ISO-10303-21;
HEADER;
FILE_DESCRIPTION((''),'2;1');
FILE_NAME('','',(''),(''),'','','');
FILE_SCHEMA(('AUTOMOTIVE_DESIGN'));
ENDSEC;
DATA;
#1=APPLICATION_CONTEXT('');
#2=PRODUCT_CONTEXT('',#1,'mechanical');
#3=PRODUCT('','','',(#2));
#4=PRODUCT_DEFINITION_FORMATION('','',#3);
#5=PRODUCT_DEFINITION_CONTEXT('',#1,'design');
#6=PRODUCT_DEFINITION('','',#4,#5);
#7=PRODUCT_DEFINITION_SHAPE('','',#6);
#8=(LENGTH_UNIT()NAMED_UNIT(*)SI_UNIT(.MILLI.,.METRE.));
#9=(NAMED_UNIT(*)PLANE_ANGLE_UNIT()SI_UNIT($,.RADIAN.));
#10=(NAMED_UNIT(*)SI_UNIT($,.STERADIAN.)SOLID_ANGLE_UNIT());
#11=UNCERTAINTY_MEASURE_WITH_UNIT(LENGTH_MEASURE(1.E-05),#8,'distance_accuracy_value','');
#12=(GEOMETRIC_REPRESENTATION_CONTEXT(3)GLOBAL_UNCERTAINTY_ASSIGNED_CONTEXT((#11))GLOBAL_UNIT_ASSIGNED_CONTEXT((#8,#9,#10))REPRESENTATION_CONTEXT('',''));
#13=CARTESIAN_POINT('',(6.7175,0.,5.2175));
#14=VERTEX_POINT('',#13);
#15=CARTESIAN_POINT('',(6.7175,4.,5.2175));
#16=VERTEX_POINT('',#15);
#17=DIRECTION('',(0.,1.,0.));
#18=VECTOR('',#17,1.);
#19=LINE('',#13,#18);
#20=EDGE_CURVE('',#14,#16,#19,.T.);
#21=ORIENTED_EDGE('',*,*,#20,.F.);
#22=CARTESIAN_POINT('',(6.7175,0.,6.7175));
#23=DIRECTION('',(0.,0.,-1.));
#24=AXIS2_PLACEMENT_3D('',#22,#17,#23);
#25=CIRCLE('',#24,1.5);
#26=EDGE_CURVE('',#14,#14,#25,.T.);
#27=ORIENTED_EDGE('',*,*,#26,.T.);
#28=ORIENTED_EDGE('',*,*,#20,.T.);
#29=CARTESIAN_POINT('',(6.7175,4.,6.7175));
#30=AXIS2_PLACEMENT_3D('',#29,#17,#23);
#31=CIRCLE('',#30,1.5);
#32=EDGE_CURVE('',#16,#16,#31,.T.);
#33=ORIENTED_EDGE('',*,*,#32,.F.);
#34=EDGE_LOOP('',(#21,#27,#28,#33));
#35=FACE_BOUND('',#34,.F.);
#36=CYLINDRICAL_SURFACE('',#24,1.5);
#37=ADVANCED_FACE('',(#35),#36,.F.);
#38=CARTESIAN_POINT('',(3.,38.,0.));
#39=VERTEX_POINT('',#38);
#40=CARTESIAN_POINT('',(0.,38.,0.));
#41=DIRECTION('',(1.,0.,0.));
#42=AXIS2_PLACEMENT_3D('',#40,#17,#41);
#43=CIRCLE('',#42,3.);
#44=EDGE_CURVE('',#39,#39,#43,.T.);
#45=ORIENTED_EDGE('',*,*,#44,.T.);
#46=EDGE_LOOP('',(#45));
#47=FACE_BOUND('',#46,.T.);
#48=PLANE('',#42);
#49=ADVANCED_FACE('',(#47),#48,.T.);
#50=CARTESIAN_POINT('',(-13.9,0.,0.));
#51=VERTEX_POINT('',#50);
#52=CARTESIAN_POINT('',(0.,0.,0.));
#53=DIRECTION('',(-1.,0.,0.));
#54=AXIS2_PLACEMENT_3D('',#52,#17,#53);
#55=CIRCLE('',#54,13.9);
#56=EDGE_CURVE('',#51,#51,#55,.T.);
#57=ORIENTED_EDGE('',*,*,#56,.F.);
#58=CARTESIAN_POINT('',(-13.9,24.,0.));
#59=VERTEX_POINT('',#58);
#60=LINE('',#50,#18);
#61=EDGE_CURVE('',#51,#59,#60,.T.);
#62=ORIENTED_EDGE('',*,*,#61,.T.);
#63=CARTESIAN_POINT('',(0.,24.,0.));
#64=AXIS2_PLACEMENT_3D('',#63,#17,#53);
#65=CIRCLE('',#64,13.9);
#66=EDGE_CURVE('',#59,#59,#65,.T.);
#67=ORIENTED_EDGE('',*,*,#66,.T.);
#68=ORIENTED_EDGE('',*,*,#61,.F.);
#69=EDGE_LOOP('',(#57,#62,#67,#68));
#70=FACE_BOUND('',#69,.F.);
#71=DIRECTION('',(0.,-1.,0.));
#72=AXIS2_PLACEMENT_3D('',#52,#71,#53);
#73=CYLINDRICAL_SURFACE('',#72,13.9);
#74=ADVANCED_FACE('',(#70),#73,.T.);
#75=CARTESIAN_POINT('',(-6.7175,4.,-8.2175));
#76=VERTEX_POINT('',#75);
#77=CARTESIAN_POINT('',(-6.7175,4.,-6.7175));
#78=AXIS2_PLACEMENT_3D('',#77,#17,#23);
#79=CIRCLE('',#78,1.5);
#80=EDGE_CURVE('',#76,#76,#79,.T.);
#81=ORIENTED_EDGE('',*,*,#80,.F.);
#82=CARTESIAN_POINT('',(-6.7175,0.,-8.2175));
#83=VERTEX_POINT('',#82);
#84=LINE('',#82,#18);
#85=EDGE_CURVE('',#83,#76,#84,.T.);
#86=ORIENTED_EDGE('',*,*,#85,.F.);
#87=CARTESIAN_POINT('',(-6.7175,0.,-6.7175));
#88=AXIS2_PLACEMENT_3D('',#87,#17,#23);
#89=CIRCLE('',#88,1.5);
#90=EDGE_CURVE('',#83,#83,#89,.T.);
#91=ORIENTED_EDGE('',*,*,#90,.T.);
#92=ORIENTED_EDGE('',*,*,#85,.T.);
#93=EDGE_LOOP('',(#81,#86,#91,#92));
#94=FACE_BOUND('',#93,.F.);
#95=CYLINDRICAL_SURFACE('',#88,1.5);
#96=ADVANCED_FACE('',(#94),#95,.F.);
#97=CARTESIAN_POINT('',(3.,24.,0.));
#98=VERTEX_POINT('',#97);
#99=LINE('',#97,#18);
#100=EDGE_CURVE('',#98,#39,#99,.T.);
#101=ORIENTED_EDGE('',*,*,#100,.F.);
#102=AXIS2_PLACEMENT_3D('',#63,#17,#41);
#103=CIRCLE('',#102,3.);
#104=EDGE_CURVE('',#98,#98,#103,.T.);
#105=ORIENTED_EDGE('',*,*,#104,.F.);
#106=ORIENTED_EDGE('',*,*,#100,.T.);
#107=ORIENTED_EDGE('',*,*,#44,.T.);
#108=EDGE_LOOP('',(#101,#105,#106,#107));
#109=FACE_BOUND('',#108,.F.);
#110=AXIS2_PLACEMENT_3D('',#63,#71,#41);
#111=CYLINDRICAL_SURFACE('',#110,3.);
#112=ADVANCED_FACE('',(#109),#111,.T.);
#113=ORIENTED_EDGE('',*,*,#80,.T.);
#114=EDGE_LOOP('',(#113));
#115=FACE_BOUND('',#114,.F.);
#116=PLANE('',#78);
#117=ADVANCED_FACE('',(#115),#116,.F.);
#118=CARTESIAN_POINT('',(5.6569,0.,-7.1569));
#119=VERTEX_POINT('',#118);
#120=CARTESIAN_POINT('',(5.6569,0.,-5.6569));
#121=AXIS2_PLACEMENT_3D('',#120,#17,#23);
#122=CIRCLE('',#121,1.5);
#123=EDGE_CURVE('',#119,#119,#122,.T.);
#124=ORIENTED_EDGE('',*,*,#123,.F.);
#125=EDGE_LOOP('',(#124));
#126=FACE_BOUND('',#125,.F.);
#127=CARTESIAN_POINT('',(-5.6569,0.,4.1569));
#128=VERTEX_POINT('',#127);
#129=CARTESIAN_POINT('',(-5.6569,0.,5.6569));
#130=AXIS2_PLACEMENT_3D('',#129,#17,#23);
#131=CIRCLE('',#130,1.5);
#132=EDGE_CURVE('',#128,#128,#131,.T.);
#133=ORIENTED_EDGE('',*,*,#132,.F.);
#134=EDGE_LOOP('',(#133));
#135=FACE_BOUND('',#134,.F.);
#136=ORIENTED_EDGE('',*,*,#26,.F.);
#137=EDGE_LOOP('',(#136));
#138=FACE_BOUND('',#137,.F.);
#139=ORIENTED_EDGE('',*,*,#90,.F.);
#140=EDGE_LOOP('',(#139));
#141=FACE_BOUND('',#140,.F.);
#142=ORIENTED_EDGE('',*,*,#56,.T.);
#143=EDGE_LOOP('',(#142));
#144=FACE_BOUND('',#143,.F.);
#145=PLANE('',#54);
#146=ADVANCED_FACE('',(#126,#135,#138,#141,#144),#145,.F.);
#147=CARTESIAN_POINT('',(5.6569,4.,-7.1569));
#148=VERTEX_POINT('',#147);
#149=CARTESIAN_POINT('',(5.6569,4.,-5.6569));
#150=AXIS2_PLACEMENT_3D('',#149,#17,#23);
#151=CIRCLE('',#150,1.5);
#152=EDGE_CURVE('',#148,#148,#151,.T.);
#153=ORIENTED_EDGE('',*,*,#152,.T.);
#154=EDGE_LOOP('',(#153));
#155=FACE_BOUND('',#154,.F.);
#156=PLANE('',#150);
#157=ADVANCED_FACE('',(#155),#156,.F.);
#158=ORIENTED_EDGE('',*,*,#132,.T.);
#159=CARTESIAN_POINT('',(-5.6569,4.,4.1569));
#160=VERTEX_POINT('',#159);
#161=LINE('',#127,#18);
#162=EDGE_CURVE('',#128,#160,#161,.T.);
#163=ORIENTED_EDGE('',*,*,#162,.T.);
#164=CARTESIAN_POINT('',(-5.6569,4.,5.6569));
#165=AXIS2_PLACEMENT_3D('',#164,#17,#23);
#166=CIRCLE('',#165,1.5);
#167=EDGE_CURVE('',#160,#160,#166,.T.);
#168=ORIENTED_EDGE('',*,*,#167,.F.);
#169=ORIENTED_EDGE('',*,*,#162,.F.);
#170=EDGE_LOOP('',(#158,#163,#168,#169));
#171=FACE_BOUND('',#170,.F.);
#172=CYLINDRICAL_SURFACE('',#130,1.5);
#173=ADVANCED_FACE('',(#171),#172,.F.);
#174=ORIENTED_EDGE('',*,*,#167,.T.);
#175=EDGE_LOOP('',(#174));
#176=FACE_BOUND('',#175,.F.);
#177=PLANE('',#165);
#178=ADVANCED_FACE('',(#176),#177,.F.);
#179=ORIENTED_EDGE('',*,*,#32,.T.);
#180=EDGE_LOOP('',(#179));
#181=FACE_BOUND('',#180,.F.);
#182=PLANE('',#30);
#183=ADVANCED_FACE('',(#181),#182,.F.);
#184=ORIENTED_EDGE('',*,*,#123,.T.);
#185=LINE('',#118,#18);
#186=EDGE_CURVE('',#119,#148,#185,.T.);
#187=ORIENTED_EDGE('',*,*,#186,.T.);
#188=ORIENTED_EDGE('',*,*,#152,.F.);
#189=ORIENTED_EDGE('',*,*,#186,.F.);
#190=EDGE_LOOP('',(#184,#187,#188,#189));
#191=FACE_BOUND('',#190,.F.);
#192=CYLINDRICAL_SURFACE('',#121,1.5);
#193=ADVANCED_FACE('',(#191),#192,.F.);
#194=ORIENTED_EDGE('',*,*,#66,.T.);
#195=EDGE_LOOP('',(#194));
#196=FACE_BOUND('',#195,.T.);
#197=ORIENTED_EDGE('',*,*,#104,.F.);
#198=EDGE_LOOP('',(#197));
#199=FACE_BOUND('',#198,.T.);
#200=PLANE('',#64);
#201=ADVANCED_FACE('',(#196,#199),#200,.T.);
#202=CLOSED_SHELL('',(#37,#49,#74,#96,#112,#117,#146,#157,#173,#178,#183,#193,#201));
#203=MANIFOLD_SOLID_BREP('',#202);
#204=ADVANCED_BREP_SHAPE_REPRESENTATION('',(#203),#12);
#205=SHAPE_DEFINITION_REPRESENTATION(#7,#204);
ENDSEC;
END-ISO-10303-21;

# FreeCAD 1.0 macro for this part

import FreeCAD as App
import Part
import Sketcher
Q = App.Units.Quantity

doc = App.newDocument("Part")
params = doc.addObject("Spreadsheet::Sheet", "Params")
for row, (alias, value) in enumerate([
    ("sketch1_diameter", "27.8 mm"),
    ("pad1_length", "24 mm"),
    ("sketch2_diameter", "3 mm"),
    ("hole_diameter", "3 mm"),
    ("hole_depth", "4 mm"),
    ("sketch3_diameter", "6 mm"),
    ("pad2_length", "14 mm"),
], start=1):
    params.set(f"A{row}", alias)
    params.set(f"B{row}", "=" + value)
    params.setAlias(f"B{row}", alias)

body = doc.addObject("PartDesign::Body", "Body")

sketch1 = doc.addObject("Sketcher::SketchObject", "Sketch")
body.addObject(sketch1)
sketch1.AttachmentSupport = (doc.XZ_Plane, [""])
sketch1.MapMode = "FlatFace"
sketch1.addGeometry(Part.Circle(App.Vector(0, 0, 0), App.Vector(0, 0, 1), 14), False)
sketch1.addConstraint(Sketcher.Constraint("Coincident", 0, 3, -1, 1))
sketch1.addConstraint(Sketcher.Constraint("Diameter", 0, Q("27.8 mm")))
sketch1.setExpression("Constraints[1]", "Params.sketch1_diameter")
pad1 = doc.addObject("PartDesign::Pad", "Pad")
body.addObject(pad1)
pad1.Profile = sketch1
pad1.setExpression("Length", "Params.pad1_length")
pad1.Reversed = True

sketch2 = doc.addObject("Sketcher::SketchObject", "Sketch001")
body.addObject(sketch2)
sketch2.AttachmentSupport = (doc.XZ_Plane, [""])
sketch2.MapMode = "FlatFace"
sketch2.addGeometry(Part.Circle(App.Vector(6.7, 6.7, 0), App.Vector(0, 0, 1), 1.5), False)
sketch2.addGeometry(Part.Circle(App.Vector(5.7, -5.7, 0), App.Vector(0, 0, 1), 1.5), False)
sketch2.addGeometry(Part.Circle(App.Vector(-6.7, -6.7, 0), App.Vector(0, 0, 1), 1.5), False)
sketch2.addGeometry(Part.Circle(App.Vector(-5.7, 5.7, 0), App.Vector(0, 0, 1), 1.5), False)
sketch2.addConstraint(Sketcher.Constraint("Equal", 0, 1))
sketch2.addConstraint(Sketcher.Constraint("Equal", 1, 2))
sketch2.addConstraint(Sketcher.Constraint("Equal", 2, 3))
sketch2.addConstraint(Sketcher.Constraint("Symmetric", 0, 3, 2, 3, -1, 1))
sketch2.addConstraint(Sketcher.Constraint("Symmetric", 1, 3, 3, 3, -1, 1))
sketch2.addConstraint(Sketcher.Constraint("Diameter", 0, Q("3 mm")))
sketch2.addConstraint(Sketcher.Constraint("DistanceX", -1, 1, 1, 3, Q("5.657 mm")))
sketch2.addConstraint(Sketcher.Constraint("DistanceY", 1, 3, -1, 1, Q("5.657 mm")))
sketch2.addConstraint(Sketcher.Constraint("DistanceX", 2, 3, 0, 3, Q("13.435 mm")))
sketch2.addConstraint(Sketcher.Constraint("DistanceY", 2, 3, 0, 3, Q("13.435 mm")))
sketch2.setExpression("Constraints[5]", "Params.sketch2_diameter")
doc.recompute()
hole = doc.addObject("PartDesign::Hole", "Hole")
body.addObject(hole)
hole.Profile = sketch2
hole.ThreadType = "None"
hole.setExpression("Diameter", "Params.hole_diameter")
hole.DepthType = "Dimension"
hole.setExpression("Depth", "Params.hole_depth")
hole.DrillPoint = "Flat"

sketch3 = doc.addObject("Sketcher::SketchObject", "Sketch002")
body.addObject(sketch3)
sketch3.AttachmentSupport = (doc.XZ_Plane, [""])
sketch3.MapMode = "FlatFace"
sketch3.AttachmentOffset = App.Placement(App.Vector(0, 0, -24), App.Rotation())
sketch3.addGeometry(Part.Circle(App.Vector(0, 0, 0), App.Vector(0, 0, 1), 3), False)
sketch3.addConstraint(Sketcher.Constraint("Coincident", 0, 3, -1, 1))
sketch3.addConstraint(Sketcher.Constraint("Diameter", 0, Q("6 mm")))
sketch3.setExpression("Constraints[1]", "Params.sketch3_diameter")
pad2 = doc.addObject("PartDesign::Pad", "Pad001")
body.addObject(pad2)
pad2.Profile = sketch3
pad2.setExpression("Length", "Params.pad2_length")
pad2.Reversed = True

doc.recompute()
